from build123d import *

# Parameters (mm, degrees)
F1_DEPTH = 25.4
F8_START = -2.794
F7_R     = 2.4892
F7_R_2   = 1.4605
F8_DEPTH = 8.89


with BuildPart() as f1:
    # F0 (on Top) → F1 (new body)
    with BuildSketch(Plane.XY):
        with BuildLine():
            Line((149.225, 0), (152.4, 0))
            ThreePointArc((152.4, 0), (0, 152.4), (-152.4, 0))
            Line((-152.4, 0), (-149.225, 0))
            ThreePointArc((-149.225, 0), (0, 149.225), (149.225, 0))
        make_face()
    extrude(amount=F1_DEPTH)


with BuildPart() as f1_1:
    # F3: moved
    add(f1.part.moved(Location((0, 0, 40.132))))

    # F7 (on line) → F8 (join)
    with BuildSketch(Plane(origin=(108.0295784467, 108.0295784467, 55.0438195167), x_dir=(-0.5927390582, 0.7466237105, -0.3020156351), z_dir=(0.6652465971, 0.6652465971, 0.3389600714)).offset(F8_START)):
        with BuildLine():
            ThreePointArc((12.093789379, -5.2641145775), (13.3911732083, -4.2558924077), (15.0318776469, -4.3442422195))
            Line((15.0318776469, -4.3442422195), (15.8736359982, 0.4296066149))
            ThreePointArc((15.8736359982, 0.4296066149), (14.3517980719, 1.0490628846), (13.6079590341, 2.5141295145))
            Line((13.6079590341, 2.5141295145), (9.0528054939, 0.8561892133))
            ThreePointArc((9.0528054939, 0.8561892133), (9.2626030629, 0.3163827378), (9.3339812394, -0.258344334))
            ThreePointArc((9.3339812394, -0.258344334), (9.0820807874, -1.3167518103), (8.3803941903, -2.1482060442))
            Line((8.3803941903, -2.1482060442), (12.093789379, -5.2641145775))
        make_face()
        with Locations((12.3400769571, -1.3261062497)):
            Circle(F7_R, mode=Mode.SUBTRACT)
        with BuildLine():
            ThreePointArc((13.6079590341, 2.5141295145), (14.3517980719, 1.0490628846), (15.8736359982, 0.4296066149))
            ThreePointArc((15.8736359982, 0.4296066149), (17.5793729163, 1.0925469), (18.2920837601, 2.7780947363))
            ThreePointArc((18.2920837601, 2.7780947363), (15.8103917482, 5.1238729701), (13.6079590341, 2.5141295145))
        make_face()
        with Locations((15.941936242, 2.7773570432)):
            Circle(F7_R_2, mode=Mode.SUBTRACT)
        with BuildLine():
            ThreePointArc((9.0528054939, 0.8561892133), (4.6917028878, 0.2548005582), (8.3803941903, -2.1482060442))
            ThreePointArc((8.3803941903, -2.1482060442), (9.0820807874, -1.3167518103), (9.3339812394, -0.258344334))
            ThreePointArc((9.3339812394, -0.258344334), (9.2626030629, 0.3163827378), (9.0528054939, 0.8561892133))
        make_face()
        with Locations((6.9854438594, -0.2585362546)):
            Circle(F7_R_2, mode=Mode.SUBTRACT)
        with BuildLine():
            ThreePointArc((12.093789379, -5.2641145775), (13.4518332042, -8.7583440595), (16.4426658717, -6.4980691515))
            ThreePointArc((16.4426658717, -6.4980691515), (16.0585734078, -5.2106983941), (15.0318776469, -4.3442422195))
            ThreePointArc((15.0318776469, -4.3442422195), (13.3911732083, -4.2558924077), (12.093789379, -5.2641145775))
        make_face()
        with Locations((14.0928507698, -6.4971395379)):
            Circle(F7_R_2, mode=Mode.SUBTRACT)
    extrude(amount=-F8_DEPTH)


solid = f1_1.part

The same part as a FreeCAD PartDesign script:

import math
import FreeCAD as App
import Part
import Sketcher
Q = App.Units.Quantity

doc = App.newDocument("Part")
body = doc.addObject("PartDesign::Body", "Body")

# Sketch on XY plane
sketch1 = body.newObject("Sketcher::SketchObject", "Sketch")
sketch1.AttachmentSupport = (doc.getObject("XY_Plane"), [""])
sketch1.MapMode = "FlatFace"
sketch1.addGeometry([
    Part.LineSegment(App.Vector(149.2, 0, 0), App.Vector(152.4, 0, 0)),
    Part.ArcOfCircle(Part.Circle(App.Vector(0, 0, 0), App.Vector(0, 0, 1), 152.4), math.radians(0), math.radians(180)),
    Part.LineSegment(App.Vector(-152.4, 0, 0), App.Vector(-149.2, 0, 0)),
    Part.ArcOfCircle(Part.Circle(App.Vector(0, 0, 0), App.Vector(0, 0, 1), 149.2), math.radians(0), math.radians(180)),
], False)
sketch1.addConstraint([
    Sketcher.Constraint("Coincident", 0, 2, 1, 1),
    Sketcher.Constraint("Coincident", 1, 2, 2, 1),
    Sketcher.Constraint("Coincident", 2, 2, 3, 2),
    Sketcher.Constraint("Coincident", 3, 1, 0, 1),
    Sketcher.Constraint("Horizontal", 0),
    Sketcher.Constraint("Horizontal", 2),
    Sketcher.Constraint("Coincident", 1, 3, -1, 1),
    Sketcher.Constraint("Coincident", 3, 3, -1, 1),
    Sketcher.Constraint("PointOnObject", 0, 2, -1),
    Sketcher.Constraint("PointOnObject", 1, 2, -1),
    Sketcher.Constraint("Radius", 1, Q("6 in")),
    Sketcher.Constraint("Radius", 3, Q("5.875 in")),
])
pad1 = body.newObject("PartDesign::Pad", "Pad")
pad1.Profile = sketch1
pad1.Length = Q("1 in")
body2 = doc.addObject("PartDesign::Body", "Body001")
doc.recompute()

body.Placement = App.Placement(App.Vector(0, 0, 40.132), App.Rotation(App.Vector(0, 0, 1), 0))
boolean = body2.newObject("PartDesign::Boolean", "Boolean")
boolean.Type = "Fuse"
boolean.addObjects([body])

# Sketch on an angled plane
sketch2 = body2.newObject("Sketcher::SketchObject", "Sketch001")
sketch2.Placement = App.Placement(App.Vector(106.170879, 106.170879, 54.096765), App.Rotation(App.Vector(-0.592739058, 0.74662371, -0.302015635), App.Vector(-0.453990499, 0, 0.891006524), App.Vector(0.665246597, 0.665246597, 0.338960071), "ZXY"))
sketch2.addGeometry([
    Part.LineSegment(App.Vector(8.4, -2.1, 0), App.Vector(12.1, -5.3, 0)),  # 0
    Part.ArcOfCircle(Part.Circle(App.Vector(14.1, -6.5, 0), App.Vector(0, 0, 1), 2.3), math.radians(148), math.radians(360)),  # 1
    Part.ArcOfCircle(Part.Circle(App.Vector(14.1, -6.5, 0), App.Vector(0, 0, 1), 2.3), math.radians(0), math.radians(66)),  # 2
    Part.LineSegment(App.Vector(15, -4.3, 0), App.Vector(15.9, 0.4, 0)),  # 3
    Part.ArcOfCircle(Part.Circle(App.Vector(15.9, 2.8, 0), App.Vector(0, 0, 1), 2.3), math.radians(-92), math.radians(0)),  # 4
    Part.ArcOfCircle(Part.Circle(App.Vector(15.9, 2.8, 0), App.Vector(0, 0, 1), 2.3), math.radians(0), math.radians(186)),  # 5
    Part.LineSegment(App.Vector(13.6, 2.5, 0), App.Vector(9.1, 0.9, 0)),  # 6
    Part.ArcOfCircle(Part.Circle(App.Vector(7, -0.3, 0), App.Vector(0, 0, 1), 2.3), math.radians(28), math.radians(306)),  # 7
    Part.Circle(App.Vector(14.1, -6.5, 0), App.Vector(0, 0, 1), 1.5),  # 8
    Part.Circle(App.Vector(7, -0.3, 0), App.Vector(0, 0, 1), 1.5),  # 9
    Part.Circle(App.Vector(12.3, -1.3, 0), App.Vector(0, 0, 1), 2.5),  # 10
    Part.Circle(App.Vector(15.9, 2.8, 0), App.Vector(0, 0, 1), 1.5),  # 11
], False)
sketch2.addConstraint([
    Sketcher.Constraint("Coincident", 0, 2, 1, 1),
    Sketcher.Constraint("Tangent", 1, 2, 2, 1),
    Sketcher.Constraint("Coincident", 2, 2, 3, 1),
    Sketcher.Constraint("Coincident", 3, 2, 4, 1),
    Sketcher.Constraint("Tangent", 4, 2, 5, 1),
    Sketcher.Constraint("Coincident", 5, 2, 6, 1),
    Sketcher.Constraint("Coincident", 6, 2, 7, 1),
    Sketcher.Constraint("Coincident", 7, 2, 0, 1),
    Sketcher.Constraint("Equal", 1, 2),
    Sketcher.Constraint("Equal", 2, 4),
    Sketcher.Constraint("Equal", 4, 5),
    Sketcher.Constraint("Equal", 5, 7),
    Sketcher.Constraint("Equal", 8, 9),
    Sketcher.Constraint("Equal", 9, 11),
    Sketcher.Constraint("Horizontal", 2, 3, 1, 2),
    Sketcher.Constraint("Horizontal", 5, 3, 4, 2),
    Sketcher.Constraint("Equal", 0, 3),
    Sketcher.Constraint("Equal", 3, 6),
    Sketcher.Constraint("Diameter", 8, Q("0.115 in")),
    Sketcher.Constraint("Diameter", 10, Q("0.196 in")),
    Sketcher.Constraint("Angle", 0, Q("-40 deg")),
    Sketcher.Constraint("Angle", 3, Q("80 deg")),
    Sketcher.Constraint("Angle", 6, Q("-160 deg")),
    Sketcher.Constraint("Radius", 1, Q("0.0925 in")),
    Sketcher.Constraint("DistanceX", 5, 2, 3, 2, Q("0.0891999 in")),
    Sketcher.Constraint("DistanceY", 10, 3, 4, 3, 4.104201),
    Sketcher.Constraint("DistanceX", 3, 2, 11, 3, 0.0683),
    Sketcher.Constraint("DistanceY", 7, 2, 10, 3, 0.8221),
    Sketcher.Constraint("DistanceY", 1, 3, -1, 1, 6.498069),
    Sketcher.Constraint("DistanceX", -1, 1, 7, 3, 6.984481),
    Sketcher.Constraint("DistanceX", -1, 1, 8, 3, 14.092851),
    Sketcher.Constraint("DistanceY", 8, 3, -1, 1, 6.49714),
    Sketcher.Constraint("DistanceX", -1, 1, 0, 2, 12.093789),
    Sketcher.Constraint("DistanceX", -1, 1, 5, 2, 13.607959),
    Sketcher.Constraint("DistanceY", -1, 1, 5, 2, 2.51413),
    Sketcher.Constraint("DistanceY", 9, 3, 7, 3, 0.000192),
    Sketcher.Constraint("DistanceX", 9, 3, 4, 3, 8.95714),
    Sketcher.Constraint("DistanceX", 10, 3, 1, 3, 1.753089),
    Sketcher.Constraint("DistanceY", 3, 2, 11, 3, 2.34775),
])
pad2 = body2.newObject("PartDesign::Pad", "Pad001")
pad2.Profile = sketch2
pad2.Length = Q("0.35 in")
pad2.Reversed = True

doc.recompute()
